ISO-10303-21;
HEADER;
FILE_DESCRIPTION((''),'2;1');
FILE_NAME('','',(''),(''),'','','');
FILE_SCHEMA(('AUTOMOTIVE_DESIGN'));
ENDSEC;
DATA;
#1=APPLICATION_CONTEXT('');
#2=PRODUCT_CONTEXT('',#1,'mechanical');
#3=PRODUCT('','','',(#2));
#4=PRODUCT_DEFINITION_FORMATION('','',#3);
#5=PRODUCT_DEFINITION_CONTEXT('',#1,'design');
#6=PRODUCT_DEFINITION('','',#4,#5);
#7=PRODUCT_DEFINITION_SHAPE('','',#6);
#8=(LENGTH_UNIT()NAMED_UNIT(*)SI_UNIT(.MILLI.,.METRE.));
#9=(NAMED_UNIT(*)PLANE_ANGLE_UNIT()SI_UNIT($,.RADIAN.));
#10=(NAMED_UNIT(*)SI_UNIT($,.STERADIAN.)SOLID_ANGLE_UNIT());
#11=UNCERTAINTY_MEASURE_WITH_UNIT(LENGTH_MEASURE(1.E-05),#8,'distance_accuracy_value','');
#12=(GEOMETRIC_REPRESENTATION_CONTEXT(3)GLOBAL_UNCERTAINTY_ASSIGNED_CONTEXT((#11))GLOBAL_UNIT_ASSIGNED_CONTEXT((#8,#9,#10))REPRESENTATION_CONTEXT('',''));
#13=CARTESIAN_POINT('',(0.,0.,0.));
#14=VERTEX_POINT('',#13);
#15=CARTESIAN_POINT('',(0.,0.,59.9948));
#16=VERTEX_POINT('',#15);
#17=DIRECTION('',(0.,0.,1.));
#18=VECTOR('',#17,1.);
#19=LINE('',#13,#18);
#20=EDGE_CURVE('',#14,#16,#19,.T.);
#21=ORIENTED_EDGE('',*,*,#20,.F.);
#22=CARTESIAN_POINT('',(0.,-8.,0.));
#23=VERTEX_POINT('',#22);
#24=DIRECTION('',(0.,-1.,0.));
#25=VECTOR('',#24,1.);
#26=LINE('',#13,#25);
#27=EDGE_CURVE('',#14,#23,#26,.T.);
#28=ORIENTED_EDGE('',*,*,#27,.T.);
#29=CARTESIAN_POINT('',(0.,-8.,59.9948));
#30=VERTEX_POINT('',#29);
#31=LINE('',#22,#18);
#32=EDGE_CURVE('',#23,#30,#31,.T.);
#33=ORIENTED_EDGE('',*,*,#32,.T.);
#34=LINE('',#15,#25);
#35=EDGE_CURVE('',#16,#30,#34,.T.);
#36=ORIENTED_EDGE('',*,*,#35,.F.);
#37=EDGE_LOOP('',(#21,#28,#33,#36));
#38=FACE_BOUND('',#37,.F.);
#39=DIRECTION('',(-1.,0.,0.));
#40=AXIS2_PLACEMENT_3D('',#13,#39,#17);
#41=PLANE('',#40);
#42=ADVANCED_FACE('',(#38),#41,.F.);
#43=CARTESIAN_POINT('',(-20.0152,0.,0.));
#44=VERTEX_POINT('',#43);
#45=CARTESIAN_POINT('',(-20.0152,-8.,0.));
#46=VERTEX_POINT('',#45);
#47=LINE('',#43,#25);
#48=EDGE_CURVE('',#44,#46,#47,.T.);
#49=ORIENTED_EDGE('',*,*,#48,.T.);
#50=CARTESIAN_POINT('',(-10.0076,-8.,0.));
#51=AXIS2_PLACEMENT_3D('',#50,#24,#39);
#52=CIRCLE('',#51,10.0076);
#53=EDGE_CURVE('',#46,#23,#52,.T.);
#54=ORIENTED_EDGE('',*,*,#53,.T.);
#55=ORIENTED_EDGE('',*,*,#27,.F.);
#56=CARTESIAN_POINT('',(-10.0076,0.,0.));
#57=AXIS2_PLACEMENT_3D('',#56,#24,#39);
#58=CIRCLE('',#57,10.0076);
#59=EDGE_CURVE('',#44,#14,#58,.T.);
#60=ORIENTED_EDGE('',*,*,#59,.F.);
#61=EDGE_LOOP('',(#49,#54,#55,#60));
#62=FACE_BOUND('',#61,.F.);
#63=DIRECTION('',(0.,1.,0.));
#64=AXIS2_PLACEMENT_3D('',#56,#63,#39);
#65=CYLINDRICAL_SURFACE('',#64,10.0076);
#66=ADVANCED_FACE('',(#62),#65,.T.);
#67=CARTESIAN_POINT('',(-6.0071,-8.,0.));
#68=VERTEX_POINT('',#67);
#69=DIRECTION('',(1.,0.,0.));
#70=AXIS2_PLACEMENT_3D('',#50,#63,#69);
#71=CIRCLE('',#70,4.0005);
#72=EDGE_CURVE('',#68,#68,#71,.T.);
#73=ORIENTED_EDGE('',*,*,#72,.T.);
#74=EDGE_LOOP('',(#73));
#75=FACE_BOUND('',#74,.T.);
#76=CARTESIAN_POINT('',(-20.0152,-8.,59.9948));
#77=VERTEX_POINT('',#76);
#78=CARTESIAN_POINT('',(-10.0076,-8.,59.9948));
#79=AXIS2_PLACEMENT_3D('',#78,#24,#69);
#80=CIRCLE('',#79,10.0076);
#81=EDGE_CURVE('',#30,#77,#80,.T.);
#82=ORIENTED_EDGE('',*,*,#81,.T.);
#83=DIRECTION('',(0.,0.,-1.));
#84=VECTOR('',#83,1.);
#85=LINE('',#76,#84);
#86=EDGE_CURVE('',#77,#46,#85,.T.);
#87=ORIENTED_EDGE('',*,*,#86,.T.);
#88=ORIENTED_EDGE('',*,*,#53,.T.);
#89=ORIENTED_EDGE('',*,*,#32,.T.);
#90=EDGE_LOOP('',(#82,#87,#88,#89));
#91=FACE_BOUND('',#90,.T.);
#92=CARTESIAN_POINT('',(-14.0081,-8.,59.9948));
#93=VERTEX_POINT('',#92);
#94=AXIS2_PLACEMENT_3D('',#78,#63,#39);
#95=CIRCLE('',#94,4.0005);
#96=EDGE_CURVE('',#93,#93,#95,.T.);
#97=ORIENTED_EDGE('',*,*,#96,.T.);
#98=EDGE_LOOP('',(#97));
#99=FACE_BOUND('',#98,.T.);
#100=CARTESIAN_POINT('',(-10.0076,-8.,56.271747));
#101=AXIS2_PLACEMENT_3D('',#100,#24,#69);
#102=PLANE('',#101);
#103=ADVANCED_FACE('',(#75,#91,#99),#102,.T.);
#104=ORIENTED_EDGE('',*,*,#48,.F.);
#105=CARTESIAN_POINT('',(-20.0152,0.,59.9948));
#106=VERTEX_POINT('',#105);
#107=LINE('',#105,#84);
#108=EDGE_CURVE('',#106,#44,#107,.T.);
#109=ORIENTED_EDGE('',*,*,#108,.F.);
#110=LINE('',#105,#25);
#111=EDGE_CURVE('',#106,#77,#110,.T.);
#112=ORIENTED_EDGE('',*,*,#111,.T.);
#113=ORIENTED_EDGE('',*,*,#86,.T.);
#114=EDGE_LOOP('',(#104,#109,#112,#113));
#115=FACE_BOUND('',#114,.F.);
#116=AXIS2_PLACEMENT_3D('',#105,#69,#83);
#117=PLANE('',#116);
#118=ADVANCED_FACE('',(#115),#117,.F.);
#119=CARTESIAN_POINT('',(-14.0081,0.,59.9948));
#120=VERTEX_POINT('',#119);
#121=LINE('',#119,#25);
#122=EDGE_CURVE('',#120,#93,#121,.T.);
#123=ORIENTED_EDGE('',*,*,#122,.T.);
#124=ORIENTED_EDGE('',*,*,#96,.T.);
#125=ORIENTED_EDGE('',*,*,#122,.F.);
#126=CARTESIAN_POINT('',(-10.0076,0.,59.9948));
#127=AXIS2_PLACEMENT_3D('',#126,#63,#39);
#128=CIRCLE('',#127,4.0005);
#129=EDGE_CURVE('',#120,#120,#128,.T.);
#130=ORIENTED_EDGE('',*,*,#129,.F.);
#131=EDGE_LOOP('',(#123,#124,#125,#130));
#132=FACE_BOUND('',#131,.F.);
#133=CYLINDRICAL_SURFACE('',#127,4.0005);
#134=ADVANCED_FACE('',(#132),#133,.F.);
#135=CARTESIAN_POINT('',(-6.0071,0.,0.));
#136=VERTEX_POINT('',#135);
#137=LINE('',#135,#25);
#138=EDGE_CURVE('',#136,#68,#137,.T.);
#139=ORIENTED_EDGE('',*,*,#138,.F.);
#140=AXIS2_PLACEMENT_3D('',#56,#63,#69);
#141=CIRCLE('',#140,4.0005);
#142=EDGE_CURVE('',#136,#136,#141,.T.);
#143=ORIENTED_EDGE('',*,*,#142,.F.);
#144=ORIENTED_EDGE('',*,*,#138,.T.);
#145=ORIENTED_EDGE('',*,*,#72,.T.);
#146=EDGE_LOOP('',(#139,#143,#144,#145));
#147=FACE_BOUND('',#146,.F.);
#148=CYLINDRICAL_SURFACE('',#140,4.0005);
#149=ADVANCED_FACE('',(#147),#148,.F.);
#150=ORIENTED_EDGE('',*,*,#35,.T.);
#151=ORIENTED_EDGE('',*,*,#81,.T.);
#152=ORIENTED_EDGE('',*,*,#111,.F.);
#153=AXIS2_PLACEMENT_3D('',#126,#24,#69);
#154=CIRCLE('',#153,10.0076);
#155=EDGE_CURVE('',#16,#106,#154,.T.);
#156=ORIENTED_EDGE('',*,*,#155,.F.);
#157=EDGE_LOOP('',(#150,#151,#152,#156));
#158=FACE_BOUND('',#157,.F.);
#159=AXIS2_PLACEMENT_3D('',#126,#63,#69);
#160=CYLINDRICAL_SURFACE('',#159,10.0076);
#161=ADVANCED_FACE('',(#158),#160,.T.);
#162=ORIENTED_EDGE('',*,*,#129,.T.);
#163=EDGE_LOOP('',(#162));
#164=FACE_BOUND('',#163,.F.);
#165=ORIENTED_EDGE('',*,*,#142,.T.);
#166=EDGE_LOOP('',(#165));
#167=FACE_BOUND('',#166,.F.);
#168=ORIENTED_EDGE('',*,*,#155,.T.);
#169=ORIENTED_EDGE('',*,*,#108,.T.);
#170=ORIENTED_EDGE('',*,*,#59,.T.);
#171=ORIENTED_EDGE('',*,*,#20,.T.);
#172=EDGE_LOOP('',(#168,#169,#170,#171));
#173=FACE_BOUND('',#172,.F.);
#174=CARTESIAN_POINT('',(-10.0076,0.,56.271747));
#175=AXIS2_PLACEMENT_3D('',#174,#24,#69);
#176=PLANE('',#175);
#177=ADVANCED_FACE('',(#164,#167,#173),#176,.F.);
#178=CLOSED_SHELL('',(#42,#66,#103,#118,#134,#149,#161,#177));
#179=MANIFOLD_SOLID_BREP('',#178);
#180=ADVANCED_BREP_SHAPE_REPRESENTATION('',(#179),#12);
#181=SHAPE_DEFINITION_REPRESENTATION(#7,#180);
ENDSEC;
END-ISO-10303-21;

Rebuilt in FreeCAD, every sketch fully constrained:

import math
import FreeCAD as App
import Part
import Sketcher
from FreeCAD import Vector
Q = App.Units.Quantity

doc = App.newDocument("Part")
body = doc.addObject("PartDesign::Body", "Body")

# Sketch on XZ plane
sketch1 = body.newObject("Sketcher::SketchObject", "Sketch")
sketch1.AttachmentSupport = (doc.getObject("XZ_Plane"), [""])
sketch1.MapMode = "FlatFace"
sketch1.addGeometry([
    Part.ArcOfCircle(Part.Circle(Vector(-10, 60, 0), Vector(0, 0, 1), 10), math.radians(0), math.radians(180)),  # 0
    Part.LineSegment(Vector(-20, 60, 0), Vector(-20, 0, 0)),  # 1
    Part.ArcOfCircle(Part.Circle(Vector(-10, 0, 0), Vector(0, 0, 1), 10), math.radians(180), math.radians(360)),  # 2
    Part.LineSegment(Vector(0, 0, 0), Vector(0, 60, 0)),  # 3
    Part.Circle(Vector(-10, 60, 0), Vector(0, 0, 1), 4),  # 4
    Part.Circle(Vector(-10, 0, 0), Vector(0, 0, 1), 4),  # 5
], False)
sketch1.addConstraint([
    Sketcher.Constraint("Tangent", 0, 2, 1, 1),
    Sketcher.Constraint("Tangent", 1, 2, 2, 1),
    Sketcher.Constraint("Tangent", 2, 2, 3, 1),
    Sketcher.Constraint("Tangent", 3, 2, 0, 1),
    Sketcher.Constraint("Vertical", 1),
    Sketcher.Constraint("Vertical", 3),
    Sketcher.Constraint("Coincident", 2, 2, -1, 1),
    Sketcher.Constraint("Coincident", 4, 3, 0, 3),
    Sketcher.Constraint("Coincident", 5, 3, 2, 3),
    Sketcher.Constraint("Equal", 4, 5),
    Sketcher.Constraint("Diameter", 4, Q("0.315 in")),
    Sketcher.Constraint("Radius", 0, Q("0.394 in")),
    Sketcher.Constraint("DistanceY", 1, 2, 1, 1, Q("2.362 in")),
])
pad1 = body.newObject("PartDesign::Pad", "Pad")
pad1.Profile = sketch1
pad1.Length = 8

doc.recompute()
